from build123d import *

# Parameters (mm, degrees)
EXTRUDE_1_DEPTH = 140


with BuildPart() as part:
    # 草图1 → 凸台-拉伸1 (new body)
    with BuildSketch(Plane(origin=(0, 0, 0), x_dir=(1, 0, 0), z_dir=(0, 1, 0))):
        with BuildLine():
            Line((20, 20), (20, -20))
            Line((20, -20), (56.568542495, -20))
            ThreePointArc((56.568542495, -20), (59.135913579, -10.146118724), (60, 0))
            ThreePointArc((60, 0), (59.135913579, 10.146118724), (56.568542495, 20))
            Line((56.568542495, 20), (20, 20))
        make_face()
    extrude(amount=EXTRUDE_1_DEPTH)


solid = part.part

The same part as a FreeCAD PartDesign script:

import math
import FreeCAD as App
import Part
import Sketcher

V = App.Vector
Q = App.Units.Quantity

doc = App.newDocument("Part")
params = doc.addObject("Spreadsheet::Sheet", "Params")
for row, (alias, value) in enumerate([
    ("sketch1_radius", "60 mm"),
    ("sketch1_height", "40 mm"),
    ("pad1_length", "140 mm"),
], start=1):
    params.set(f"A{row}", alias)
    params.set(f"B{row}", "=" + value)
    params.setAlias(f"B{row}", alias)

body = doc.addObject("PartDesign::Body", "Body")

sketch1 = body.newObject("Sketcher::SketchObject", "Sketch")
sketch1.AttachmentSupport = (doc.getObject("XZ_Plane"), [""])
sketch1.MapMode = "FlatFace"
sketch1.addGeometry([
    Part.LineSegment(V(20, -20, 0), V(20, 20, 0)),
    Part.LineSegment(V(20, 20, 0), V(57, 20, 0)),
    Part.ArcOfCircle(Part.Circle(V(0, 0, 0), V(0, 0, 1), 60), math.radians(0), math.radians(19.47)),
    Part.ArcOfCircle(Part.Circle(V(0, 0, 0), V(0, 0, 1), 60), math.radians(-19.47), math.radians(0)),
    Part.LineSegment(V(57, -20, 0), V(20, -20, 0)),
], False)
sketch1.addConstraint([
    Sketcher.Constraint("Coincident", 0, 2, 1, 1),
    Sketcher.Constraint("Coincident", 1, 2, 2, 2),
    Sketcher.Constraint("Tangent", 2, 1, 3, 2),
    Sketcher.Constraint("Coincident", 3, 1, 4, 1),
    Sketcher.Constraint("Coincident", 4, 2, 0, 1),
    Sketcher.Constraint("Vertical", 0),
    Sketcher.Constraint("Horizontal", 1),
    Sketcher.Constraint("Horizontal", 4),
    Sketcher.Constraint("Coincident", 2, 3, -1, 1),
    Sketcher.Constraint("Equal", 2, 3),
    Sketcher.Constraint("PointOnObject", 2, 1, -1),
    Sketcher.Constraint("Vertical", 1, 2, 3, 1),
    Sketcher.Constraint("Radius", 2, Q("60 mm")),
    Sketcher.Constraint("DistanceY", 0, 1, 0, 2, Q("40 mm")),
    Sketcher.Constraint("DistanceX", -1, 1, 0, 2, Q("20 mm")),
])
sketch1.setExpression("Constraints[12]", "Params.sketch1_radius")
sketch1.setExpression("Constraints[13]", "Params.sketch1_height")
pad1 = body.newObject("PartDesign::Pad", "Pad")
pad1.Profile = sketch1
pad1.setExpression("Length", "Params.pad1_length")
pad1.Reversed = True

doc.recompute()
